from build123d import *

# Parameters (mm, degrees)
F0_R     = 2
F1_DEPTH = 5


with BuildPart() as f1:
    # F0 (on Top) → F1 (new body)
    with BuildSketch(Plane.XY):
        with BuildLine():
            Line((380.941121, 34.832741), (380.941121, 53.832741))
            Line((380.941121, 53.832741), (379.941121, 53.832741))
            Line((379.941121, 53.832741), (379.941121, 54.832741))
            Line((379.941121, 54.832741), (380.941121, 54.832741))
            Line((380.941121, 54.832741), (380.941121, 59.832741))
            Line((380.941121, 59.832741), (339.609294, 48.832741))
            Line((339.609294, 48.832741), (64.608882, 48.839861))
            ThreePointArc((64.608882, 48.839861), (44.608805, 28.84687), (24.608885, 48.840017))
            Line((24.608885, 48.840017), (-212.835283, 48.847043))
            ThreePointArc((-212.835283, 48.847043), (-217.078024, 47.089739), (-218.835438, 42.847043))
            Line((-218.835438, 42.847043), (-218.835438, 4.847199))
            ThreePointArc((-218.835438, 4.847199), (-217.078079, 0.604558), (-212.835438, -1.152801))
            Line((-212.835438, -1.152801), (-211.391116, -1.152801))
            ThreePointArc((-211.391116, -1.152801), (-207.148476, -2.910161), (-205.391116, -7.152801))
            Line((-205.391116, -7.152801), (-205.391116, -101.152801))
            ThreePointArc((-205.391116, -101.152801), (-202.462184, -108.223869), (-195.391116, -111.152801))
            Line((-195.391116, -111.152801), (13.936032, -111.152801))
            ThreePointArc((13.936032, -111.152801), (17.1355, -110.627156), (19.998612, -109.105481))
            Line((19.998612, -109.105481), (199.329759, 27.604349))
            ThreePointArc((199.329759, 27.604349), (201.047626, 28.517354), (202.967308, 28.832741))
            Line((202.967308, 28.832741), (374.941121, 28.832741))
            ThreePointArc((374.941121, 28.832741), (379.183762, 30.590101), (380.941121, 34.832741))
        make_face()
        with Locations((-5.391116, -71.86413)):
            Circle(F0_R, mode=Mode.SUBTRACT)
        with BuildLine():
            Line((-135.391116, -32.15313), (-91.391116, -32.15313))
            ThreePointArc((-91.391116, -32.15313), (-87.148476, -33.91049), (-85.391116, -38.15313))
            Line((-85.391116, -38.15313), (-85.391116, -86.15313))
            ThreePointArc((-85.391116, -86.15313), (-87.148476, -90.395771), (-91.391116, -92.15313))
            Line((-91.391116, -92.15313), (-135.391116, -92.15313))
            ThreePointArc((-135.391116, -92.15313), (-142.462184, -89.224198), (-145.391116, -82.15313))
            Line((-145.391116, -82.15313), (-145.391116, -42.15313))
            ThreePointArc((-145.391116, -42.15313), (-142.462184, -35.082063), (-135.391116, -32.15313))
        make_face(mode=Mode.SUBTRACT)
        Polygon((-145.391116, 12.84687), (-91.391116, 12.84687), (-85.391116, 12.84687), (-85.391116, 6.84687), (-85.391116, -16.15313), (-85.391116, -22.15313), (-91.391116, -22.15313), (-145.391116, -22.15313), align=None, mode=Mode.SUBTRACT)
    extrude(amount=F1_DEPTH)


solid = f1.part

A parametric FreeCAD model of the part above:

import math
import FreeCAD as App
import Part
import Sketcher


def add_polygon(sketch, points):
    """Adds a closed chain of lines whose ends are joined by coincident constraints."""
    first, n = sketch.GeometryCount, len(points)
    for a, b in zip(points, points[1:] + points[:1]):
        sketch.addGeometry(Part.LineSegment(App.Vector(*a, 0), App.Vector(*b, 0)), False)
    for i in range(n):
        sketch.addConstraint(Sketcher.Constraint("Coincident", first + i, 2, first + (i + 1) % n, 1))

doc = App.newDocument("Part")
body = doc.addObject("PartDesign::Body", "Body")

# Sketch on XY plane
sketch1 = doc.addObject("Sketcher::SketchObject", "Sketch")
body.addObject(sketch1)
sketch1.AttachmentSupport = (doc.XY_Plane, [""])
sketch1.MapMode = "FlatFace"
sketch1.addGeometry(Part.LineSegment(App.Vector(380.9, 34.8, 0), App.Vector(380.9, 53.8, 0)), False)  # 0
sketch1.addGeometry(Part.LineSegment(App.Vector(380.9, 53.8, 0), App.Vector(379.9, 53.8, 0)), False)  # 1
sketch1.addGeometry(Part.LineSegment(App.Vector(379.9, 53.8, 0), App.Vector(379.9, 54.8, 0)), False)  # 2
sketch1.addGeometry(Part.LineSegment(App.Vector(379.9, 54.8, 0), App.Vector(380.9, 54.8, 0)), False)  # 3
sketch1.addGeometry(Part.LineSegment(App.Vector(380.9, 54.8, 0), App.Vector(380.9, 59.8, 0)), False)  # 4
sketch1.addGeometry(Part.LineSegment(App.Vector(380.9, 59.8, 0), App.Vector(339.6, 48.8, 0)), False)  # 5
sketch1.addGeometry(Part.LineSegment(App.Vector(339.6, 48.8, 0), App.Vector(64.6, 48.8, 0)), False)  # 6
sketch1.addGeometry(Part.ArcOfCircle(Part.Circle(App.Vector(44.6, 48.8, 0), App.Vector(0, 0, 1), 20), math.radians(-180), math.radians(0)), False)  # 7
sketch1.addGeometry(Part.LineSegment(App.Vector(24.6, 48.8, 0), App.Vector(-212.8, 48.8, 0)), False)  # 8
sketch1.addGeometry(Part.ArcOfCircle(Part.Circle(App.Vector(-212.8, 42.8, 0), App.Vector(0, 0, 1), 6), math.radians(90), math.radians(180)), False)  # 9
sketch1.addGeometry(Part.LineSegment(App.Vector(-218.8, 42.8, 0), App.Vector(-218.8, 4.8, 0)), False)  # 10
sketch1.addGeometry(Part.ArcOfCircle(Part.Circle(App.Vector(-212.8, 4.8, 0), App.Vector(0, 0, 1), 6), math.radians(180), math.radians(270)), False)  # 11
sketch1.addGeometry(Part.LineSegment(App.Vector(-212.8, -1.2, 0), App.Vector(-211.4, -1.2, 0)), False)  # 12
sketch1.addGeometry(Part.ArcOfCircle(Part.Circle(App.Vector(-211.4, -7.2, 0), App.Vector(0, 0, 1), 6), math.radians(0), math.radians(90)), False)  # 13
sketch1.addGeometry(Part.LineSegment(App.Vector(-205.4, -7.2, 0), App.Vector(-205.4, -101.2, 0)), False)  # 14
sketch1.addGeometry(Part.ArcOfCircle(Part.Circle(App.Vector(-195.4, -101.2, 0), App.Vector(0, 0, 1), 10), math.radians(180), math.radians(270)), False)  # 15
sketch1.addGeometry(Part.LineSegment(App.Vector(-195.4, -111.2, 0), App.Vector(13.9, -111.2, 0)), False)  # 16
sketch1.addGeometry(Part.ArcOfCircle(Part.Circle(App.Vector(13.9, -101.2, 0), App.Vector(0, 0, 1), 10), math.radians(-90), math.radians(-53)), False)  # 17
sketch1.addGeometry(Part.LineSegment(App.Vector(20, -109.1, 0), App.Vector(199.3, 27.6, 0)), False)  # 18
sketch1.addGeometry(Part.ArcOfCircle(Part.Circle(App.Vector(203, 22.8, 0), App.Vector(0, 0, 1), 6), math.radians(90), math.radians(127)), False)  # 19
sketch1.addGeometry(Part.LineSegment(App.Vector(203, 28.8, 0), App.Vector(374.9, 28.8, 0)), False)  # 20
sketch1.addGeometry(Part.ArcOfCircle(Part.Circle(App.Vector(374.9, 34.8, 0), App.Vector(0, 0, 1), 6), math.radians(-90), math.radians(0)), False)  # 21
sketch1.addGeometry(Part.ArcOfCircle(Part.Circle(App.Vector(-135.4, -42.2, 0), App.Vector(0, 0, 1), 10), math.radians(90), math.radians(180)), False)  # 22
sketch1.addGeometry(Part.LineSegment(App.Vector(-135.4, -32.2, 0), App.Vector(-91.4, -32.2, 0)), False)  # 23
sketch1.addGeometry(Part.ArcOfCircle(Part.Circle(App.Vector(-91.4, -38.2, 0), App.Vector(0, 0, 1), 6), math.radians(0), math.radians(90)), False)  # 24
sketch1.addGeometry(Part.LineSegment(App.Vector(-85.4, -38.2, 0), App.Vector(-85.4, -86.2, 0)), False)  # 25
sketch1.addGeometry(Part.ArcOfCircle(Part.Circle(App.Vector(-91.4, -86.2, 0), App.Vector(0, 0, 1), 6), math.radians(-90), math.radians(0)), False)  # 26
sketch1.addGeometry(Part.LineSegment(App.Vector(-91.4, -92.2, 0), App.Vector(-135.4, -92.2, 0)), False)  # 27
sketch1.addGeometry(Part.ArcOfCircle(Part.Circle(App.Vector(-135.4, -82.2, 0), App.Vector(0, 0, 1), 10), math.radians(180), math.radians(270)), False)  # 28
sketch1.addGeometry(Part.LineSegment(App.Vector(-145.4, -82.2, 0), App.Vector(-145.4, -42.2, 0)), False)  # 29
sketch1.addGeometry(Part.Circle(App.Vector(-5.4, -71.9, 0), App.Vector(0, 0, 1), 2), False)  # 30
add_polygon(sketch1, [(-145.4, -22.2), (-145.4, 12.8), (-85.4, 12.8), (-85.4, -22.2)])  # lines 31-34
sketch1.addConstraint([
    Sketcher.Constraint("Coincident", 0, 2, 1, 1),
    Sketcher.Constraint("Coincident", 1, 2, 2, 1),
    Sketcher.Constraint("Coincident", 2, 2, 3, 1),
    Sketcher.Constraint("Coincident", 3, 2, 4, 1),
    Sketcher.Constraint("Coincident", 4, 2, 5, 1),
    Sketcher.Constraint("Coincident", 5, 2, 6, 1),
    Sketcher.Constraint("Coincident", 6, 2, 7, 2),
    Sketcher.Constraint("Coincident", 7, 1, 8, 1),
    Sketcher.Constraint("Coincident", 8, 2, 9, 1),
    Sketcher.Constraint("Tangent", 9, 2, 10, 1),
    Sketcher.Constraint("Tangent", 10, 2, 11, 1),
    Sketcher.Constraint("Tangent", 11, 2, 12, 1),
    Sketcher.Constraint("Tangent", 12, 2, 13, 2),
    Sketcher.Constraint("Tangent", 13, 1, 14, 1),
    Sketcher.Constraint("Tangent", 14, 2, 15, 1),
    Sketcher.Constraint("Tangent", 15, 2, 16, 1),
    Sketcher.Constraint("Tangent", 16, 2, 17, 1),
    Sketcher.Constraint("Tangent", 17, 2, 18, 1),
    Sketcher.Constraint("Tangent", 18, 2, 19, 2),
    Sketcher.Constraint("Tangent", 19, 1, 20, 1),
    Sketcher.Constraint("Tangent", 20, 2, 21, 1),
    Sketcher.Constraint("Tangent", 21, 2, 0, 1),
    Sketcher.Constraint("Tangent", 22, 1, 23, 1),
    Sketcher.Constraint("Tangent", 23, 2, 24, 2),
    Sketcher.Constraint("Tangent", 24, 1, 25, 1),
    Sketcher.Constraint("Tangent", 25, 2, 26, 2),
    Sketcher.Constraint("Tangent", 26, 1, 27, 1),
    Sketcher.Constraint("Tangent", 27, 2, 28, 2),
    Sketcher.Constraint("Tangent", 28, 1, 29, 1),
    Sketcher.Constraint("Tangent", 29, 2, 22, 2),
    Sketcher.Constraint("Vertical", 0),
    Sketcher.Constraint("Horizontal", 1),
    Sketcher.Constraint("Vertical", 2),
    Sketcher.Constraint("Horizontal", 3),
    Sketcher.Constraint("Vertical", 4),
    Sketcher.Constraint("Vertical", 10),
    Sketcher.Constraint("Horizontal", 12),
    Sketcher.Constraint("Vertical", 14),
    Sketcher.Constraint("Horizontal", 16),
    Sketcher.Constraint("Horizontal", 20),
    Sketcher.Constraint("Horizontal", 23),
    Sketcher.Constraint("Vertical", 25),
    Sketcher.Constraint("Horizontal", 27),
    Sketcher.Constraint("Vertical", 29),
    Sketcher.Constraint("Vertical", 31),
    Sketcher.Constraint("Horizontal", 32),
    Sketcher.Constraint("Vertical", 33),
    Sketcher.Constraint("Horizontal", 34),
    Sketcher.Constraint("Equal", 9, 11),
    Sketcher.Constraint("Equal", 15, 17),
    Sketcher.Constraint("Equal", 11, 19),
    Sketcher.Constraint("Equal", 13, 21),
    Sketcher.Constraint("Equal", 17, 22),
    Sketcher.Constraint("Equal", 21, 24),
    Sketcher.Constraint("Equal", 24, 26),
    Sketcher.Constraint("Equal", 22, 28),
    Sketcher.Constraint("Vertical", 0, 2, 3, 2),
    Sketcher.Constraint("Vertical", 29, 2, 31, 2),
    Sketcher.Constraint("Vertical", 25, 2, 32, 2),
    Sketcher.Constraint("Equal", 3, 2),
    Sketcher.Constraint("Diameter", 30, 4.0),
    Sketcher.Constraint("Radius", 7, 20.0),
    Sketcher.Constraint("Radius", 9, 5.999999),
    Sketcher.Constraint("Radius", 15, 9.999999),
    Sketcher.Constraint("Radius", 21, 6.000001),
    Sketcher.Constraint("DistanceX", 1, 2, 1, 1, 1.0),
    Sketcher.Constraint("DistanceX", 23, 1, 23, 2, 44.0),
    Sketcher.Constraint("DistanceY", 0, 1, 0, 2, 19.0),
    Sketcher.Constraint("DistanceY", 4, 1, 4, 2, 5.0),
    Sketcher.Constraint("DistanceY", 14, 2, 14, 1, 94.0),
    Sketcher.Constraint("DistanceY", 25, 2, 25, 1, 48.0),
    Sketcher.Constraint("DistanceY", 31, 1, 31, 2, 35.0),
    Sketcher.Constraint("DistanceX", 13, 3, 7, 3, 256.000002),
    Sketcher.Constraint("DistanceX", 15, 3, 22, 3, 60.000002),
    Sketcher.Constraint("DistanceX", 26, 3, 30, 3, 86.000001),
    Sketcher.Constraint("DistanceY", 21, 3, 5, 2, 13.999999),
    Sketcher.Constraint("DistanceY", 22, 1, 31, 2, 45.0),
    Sketcher.Constraint("DistanceY", 26, 3, 30, 3, 14.288999),
    Sketcher.Constraint("DistanceY", 30, 3, 7, 3, 120.711),
    Sketcher.Constraint("DistanceX", 12, 1, 12, 2, 1.444322),
    Sketcher.Constraint("DistanceX", 16, 1, 16, 2, 209.327148),
    Sketcher.Constraint("DistanceY", 15, 3, -1, 1, 101.152802),
    Sketcher.Constraint("DistanceY", 19, 3, 9, 3, 20.014302),
    Sketcher.Constraint("Distance", 5, 42.77055),
    Sketcher.Constraint("Distance", 8, 237.444168),
    Sketcher.Constraint("DistanceX", 20, 1, 20, 2, 171.973813),
    Sketcher.Constraint("DistanceY", 10, 2, 10, 1, 37.999844),
    Sketcher.Constraint("DistanceY", -1, 1, 7, 3, 48.84687),
    Sketcher.Constraint("DistanceX", 9, 3, -1, 1, 212.835439),
    Sketcher.Constraint("DistanceX", -1, 1, 21, 3, 374.94112),
    Sketcher.Constraint("DistanceY", -1, 1, 6, 2, 48.839861),
    Sketcher.Constraint("DistanceY", 24, 3, 7, 1, 86.993149),
])
pad1 = doc.addObject("PartDesign::Pad", "Pad")
body.addObject(pad1)
pad1.Profile = sketch1
pad1.Length = 5

doc.recompute()
